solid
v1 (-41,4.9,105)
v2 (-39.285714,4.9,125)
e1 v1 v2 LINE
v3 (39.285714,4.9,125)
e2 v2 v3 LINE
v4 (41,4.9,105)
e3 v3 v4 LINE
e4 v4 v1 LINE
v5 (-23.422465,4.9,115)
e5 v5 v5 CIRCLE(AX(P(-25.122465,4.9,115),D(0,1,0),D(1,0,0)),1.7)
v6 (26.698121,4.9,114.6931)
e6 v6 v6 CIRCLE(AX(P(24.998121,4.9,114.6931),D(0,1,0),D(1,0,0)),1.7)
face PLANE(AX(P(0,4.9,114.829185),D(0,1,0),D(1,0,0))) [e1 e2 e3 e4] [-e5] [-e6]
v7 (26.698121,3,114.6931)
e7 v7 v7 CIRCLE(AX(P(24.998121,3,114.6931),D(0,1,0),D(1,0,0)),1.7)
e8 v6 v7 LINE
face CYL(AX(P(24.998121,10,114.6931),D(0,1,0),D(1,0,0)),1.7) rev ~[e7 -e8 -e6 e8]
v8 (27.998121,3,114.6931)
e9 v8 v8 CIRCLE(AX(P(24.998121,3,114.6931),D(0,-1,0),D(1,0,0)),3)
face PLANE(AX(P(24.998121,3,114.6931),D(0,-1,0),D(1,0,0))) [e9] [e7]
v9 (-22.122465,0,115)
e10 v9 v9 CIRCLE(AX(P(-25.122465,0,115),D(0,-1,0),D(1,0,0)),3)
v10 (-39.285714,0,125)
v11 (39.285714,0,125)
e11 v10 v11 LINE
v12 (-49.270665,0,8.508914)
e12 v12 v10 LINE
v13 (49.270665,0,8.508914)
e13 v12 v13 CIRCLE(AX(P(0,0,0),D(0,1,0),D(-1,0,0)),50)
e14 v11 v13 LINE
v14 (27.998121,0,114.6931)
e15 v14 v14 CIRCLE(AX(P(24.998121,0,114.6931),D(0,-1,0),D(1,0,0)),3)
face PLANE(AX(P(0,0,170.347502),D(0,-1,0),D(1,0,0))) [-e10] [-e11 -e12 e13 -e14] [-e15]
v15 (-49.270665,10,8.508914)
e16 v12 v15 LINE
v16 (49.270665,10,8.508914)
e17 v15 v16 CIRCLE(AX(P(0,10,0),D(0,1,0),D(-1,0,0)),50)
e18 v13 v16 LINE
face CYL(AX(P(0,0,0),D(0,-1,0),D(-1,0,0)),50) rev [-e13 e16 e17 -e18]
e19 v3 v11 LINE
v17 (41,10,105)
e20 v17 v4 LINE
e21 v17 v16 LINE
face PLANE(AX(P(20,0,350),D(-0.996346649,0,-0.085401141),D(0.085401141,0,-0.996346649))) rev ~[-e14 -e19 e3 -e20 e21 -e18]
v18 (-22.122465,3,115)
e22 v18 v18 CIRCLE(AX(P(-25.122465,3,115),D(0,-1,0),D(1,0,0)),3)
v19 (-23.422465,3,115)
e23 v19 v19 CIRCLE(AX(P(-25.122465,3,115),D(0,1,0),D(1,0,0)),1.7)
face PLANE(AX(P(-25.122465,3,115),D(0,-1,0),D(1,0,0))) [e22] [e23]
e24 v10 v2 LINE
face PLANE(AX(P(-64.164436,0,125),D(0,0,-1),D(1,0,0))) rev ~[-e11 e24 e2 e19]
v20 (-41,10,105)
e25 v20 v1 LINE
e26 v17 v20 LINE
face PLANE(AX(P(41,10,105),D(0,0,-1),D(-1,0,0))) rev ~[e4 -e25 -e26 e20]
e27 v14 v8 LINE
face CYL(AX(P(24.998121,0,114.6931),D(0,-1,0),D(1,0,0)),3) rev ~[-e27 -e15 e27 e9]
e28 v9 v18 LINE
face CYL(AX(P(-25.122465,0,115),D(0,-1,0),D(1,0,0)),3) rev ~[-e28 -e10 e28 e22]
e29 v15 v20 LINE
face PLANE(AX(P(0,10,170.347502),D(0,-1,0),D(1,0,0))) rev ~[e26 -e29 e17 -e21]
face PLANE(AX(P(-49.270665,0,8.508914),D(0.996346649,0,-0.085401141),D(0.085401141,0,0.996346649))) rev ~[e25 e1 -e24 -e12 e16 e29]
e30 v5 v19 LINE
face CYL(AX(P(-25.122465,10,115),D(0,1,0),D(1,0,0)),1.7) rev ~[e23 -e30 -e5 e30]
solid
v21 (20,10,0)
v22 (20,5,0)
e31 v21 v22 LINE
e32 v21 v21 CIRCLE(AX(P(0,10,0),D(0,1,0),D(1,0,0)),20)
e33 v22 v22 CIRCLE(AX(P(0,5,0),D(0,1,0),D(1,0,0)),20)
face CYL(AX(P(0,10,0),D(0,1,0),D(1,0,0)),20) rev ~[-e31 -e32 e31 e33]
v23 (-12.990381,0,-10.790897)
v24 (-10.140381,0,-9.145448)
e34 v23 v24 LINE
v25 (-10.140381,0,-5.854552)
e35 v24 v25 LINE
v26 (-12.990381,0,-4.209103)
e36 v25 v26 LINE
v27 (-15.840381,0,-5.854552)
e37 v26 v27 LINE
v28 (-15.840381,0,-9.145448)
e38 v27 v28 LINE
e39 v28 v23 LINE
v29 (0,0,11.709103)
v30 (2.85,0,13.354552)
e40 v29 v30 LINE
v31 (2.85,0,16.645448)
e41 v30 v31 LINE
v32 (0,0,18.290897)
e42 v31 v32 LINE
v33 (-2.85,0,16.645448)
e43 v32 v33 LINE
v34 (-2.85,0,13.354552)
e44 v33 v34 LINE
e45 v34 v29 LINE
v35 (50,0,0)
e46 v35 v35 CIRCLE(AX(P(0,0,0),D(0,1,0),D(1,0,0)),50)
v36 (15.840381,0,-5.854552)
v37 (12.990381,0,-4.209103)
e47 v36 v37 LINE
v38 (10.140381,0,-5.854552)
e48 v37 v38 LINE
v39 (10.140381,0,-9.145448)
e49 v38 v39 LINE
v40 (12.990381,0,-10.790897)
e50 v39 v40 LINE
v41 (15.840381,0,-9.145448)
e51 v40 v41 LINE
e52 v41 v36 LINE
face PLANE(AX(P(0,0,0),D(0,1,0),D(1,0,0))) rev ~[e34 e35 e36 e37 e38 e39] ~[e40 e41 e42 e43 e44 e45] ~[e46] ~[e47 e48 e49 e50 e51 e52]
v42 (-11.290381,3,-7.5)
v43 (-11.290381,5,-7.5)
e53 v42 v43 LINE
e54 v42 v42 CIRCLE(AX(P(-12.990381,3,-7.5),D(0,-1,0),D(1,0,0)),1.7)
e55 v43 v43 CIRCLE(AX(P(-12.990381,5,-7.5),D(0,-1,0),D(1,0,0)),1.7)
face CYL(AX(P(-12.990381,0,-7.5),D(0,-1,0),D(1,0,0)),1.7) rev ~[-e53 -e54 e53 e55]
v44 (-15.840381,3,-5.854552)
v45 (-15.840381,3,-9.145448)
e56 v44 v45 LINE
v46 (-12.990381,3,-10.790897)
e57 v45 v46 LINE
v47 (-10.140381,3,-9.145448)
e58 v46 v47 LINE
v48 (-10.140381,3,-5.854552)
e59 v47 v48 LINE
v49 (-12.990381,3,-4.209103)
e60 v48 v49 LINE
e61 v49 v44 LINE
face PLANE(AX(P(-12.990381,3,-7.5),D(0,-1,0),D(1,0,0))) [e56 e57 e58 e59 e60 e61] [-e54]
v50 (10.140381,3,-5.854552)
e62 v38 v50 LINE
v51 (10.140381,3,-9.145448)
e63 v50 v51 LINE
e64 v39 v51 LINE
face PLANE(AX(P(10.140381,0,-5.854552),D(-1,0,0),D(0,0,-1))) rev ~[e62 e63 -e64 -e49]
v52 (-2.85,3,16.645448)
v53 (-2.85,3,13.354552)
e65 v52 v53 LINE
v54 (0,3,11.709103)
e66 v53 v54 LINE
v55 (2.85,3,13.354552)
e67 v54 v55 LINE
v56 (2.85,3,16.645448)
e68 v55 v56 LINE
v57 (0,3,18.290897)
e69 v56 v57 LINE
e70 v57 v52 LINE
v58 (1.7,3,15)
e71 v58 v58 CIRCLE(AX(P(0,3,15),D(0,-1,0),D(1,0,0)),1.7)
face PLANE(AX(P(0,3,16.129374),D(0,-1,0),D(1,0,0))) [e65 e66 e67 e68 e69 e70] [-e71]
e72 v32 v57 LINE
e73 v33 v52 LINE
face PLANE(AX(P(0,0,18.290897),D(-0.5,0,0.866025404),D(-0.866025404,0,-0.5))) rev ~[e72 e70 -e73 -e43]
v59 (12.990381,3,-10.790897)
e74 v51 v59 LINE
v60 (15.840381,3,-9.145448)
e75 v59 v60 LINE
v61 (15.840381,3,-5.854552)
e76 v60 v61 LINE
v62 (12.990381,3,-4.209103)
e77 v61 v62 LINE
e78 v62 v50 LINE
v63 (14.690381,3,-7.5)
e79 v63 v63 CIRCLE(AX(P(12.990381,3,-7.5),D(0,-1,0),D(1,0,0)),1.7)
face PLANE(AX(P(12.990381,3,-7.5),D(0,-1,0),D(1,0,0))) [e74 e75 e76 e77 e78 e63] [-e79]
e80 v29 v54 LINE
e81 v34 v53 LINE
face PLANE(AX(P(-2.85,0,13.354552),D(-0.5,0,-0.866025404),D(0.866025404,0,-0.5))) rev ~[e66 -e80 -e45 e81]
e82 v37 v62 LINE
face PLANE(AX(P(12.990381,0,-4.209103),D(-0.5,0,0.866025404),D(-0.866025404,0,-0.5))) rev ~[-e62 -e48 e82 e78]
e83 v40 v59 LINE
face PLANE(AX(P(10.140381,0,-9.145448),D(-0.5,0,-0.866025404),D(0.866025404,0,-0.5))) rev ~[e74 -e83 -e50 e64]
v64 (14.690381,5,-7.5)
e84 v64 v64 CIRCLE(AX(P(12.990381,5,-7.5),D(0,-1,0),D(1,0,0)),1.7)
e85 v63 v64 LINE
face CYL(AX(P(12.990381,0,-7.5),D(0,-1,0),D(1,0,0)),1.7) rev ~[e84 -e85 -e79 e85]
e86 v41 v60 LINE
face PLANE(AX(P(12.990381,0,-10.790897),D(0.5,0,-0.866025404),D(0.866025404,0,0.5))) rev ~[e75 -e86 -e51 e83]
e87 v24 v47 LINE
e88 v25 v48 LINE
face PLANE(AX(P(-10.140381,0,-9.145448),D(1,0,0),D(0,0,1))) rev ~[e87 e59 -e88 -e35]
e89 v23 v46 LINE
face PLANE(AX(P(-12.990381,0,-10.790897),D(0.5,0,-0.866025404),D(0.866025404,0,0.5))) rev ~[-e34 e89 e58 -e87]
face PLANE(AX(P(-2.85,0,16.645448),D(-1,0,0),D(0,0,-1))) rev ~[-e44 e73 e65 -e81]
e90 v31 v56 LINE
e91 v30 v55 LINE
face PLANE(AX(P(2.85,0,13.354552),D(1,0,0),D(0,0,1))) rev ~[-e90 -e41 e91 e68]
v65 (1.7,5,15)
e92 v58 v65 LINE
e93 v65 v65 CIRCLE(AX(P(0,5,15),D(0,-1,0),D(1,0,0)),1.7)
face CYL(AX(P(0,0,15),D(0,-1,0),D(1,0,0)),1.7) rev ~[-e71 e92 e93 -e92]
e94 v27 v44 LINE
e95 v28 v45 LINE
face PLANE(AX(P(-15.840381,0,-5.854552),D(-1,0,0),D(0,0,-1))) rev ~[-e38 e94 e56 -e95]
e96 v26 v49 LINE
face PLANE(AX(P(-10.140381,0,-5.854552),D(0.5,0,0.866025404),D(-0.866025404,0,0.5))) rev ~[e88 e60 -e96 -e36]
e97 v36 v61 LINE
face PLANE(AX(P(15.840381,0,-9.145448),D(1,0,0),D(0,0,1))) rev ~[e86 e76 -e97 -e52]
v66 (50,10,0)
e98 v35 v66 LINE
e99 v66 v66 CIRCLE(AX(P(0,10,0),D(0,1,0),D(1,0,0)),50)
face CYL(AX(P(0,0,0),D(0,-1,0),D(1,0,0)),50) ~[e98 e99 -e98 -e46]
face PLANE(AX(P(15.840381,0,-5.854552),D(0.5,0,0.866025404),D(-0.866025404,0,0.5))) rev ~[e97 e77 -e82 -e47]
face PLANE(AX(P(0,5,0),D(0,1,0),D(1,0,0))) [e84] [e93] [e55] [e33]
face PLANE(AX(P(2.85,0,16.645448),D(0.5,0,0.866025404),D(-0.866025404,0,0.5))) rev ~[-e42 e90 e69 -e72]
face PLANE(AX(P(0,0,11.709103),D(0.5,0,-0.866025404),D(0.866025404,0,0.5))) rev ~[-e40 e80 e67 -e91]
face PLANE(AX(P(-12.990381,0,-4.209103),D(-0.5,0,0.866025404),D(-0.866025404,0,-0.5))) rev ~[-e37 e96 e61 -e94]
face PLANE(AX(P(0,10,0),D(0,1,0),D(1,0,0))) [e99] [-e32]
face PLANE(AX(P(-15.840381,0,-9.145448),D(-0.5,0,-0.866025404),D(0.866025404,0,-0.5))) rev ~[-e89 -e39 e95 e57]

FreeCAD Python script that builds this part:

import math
import FreeCAD as App
import Part
import Sketcher
Q = App.Units.Quantity


def add_polygon(sketch, points):
    """Adds a closed chain of lines whose ends are joined by coincident constraints."""
    first, n = sketch.GeometryCount, len(points)
    for a, b in zip(points, points[1:] + points[:1]):
        sketch.addGeometry(Part.LineSegment(App.Vector(*a, 0), App.Vector(*b, 0)), False)
    for i in range(n):
        sketch.addConstraint(Sketcher.Constraint("Coincident", first + i, 2, first + (i + 1) % n, 1))

doc = App.newDocument("Part")
body = doc.addObject("PartDesign::Body", "Body")

sketch1 = doc.addObject("Sketcher::SketchObject", "Sketch")
body.addObject(sketch1)
sketch1.AttachmentSupport = (doc.XZ_Plane, [""])
sketch1.MapMode = "FlatFace"
sketch1.addGeometry(Part.Circle(App.Vector(0, 0, 0), App.Vector(0, 0, 1), 50), False)
sketch1.addConstraint([
    Sketcher.Constraint("Coincident", 0, 3, -1, 1),
    Sketcher.Constraint("Diameter", 0, 100.0),
])
pad1 = doc.addObject("PartDesign::Pad", "Pad")
body.addObject(pad1)
pad1.Profile = sketch1
pad1.Length = 10
pad1.Reversed = True

sketch2 = doc.addObject("Sketcher::SketchObject", "Sketch001")
body.addObject(sketch2)
sketch2.AttachmentSupport = (doc.XZ_Plane, [""])
sketch2.MapMode = "FlatFace"
sketch2.AttachmentOffset = App.Placement(App.Vector(0, 0, -10), App.Rotation())
sketch2.addGeometry(Part.Circle(App.Vector(0, 0, 0), App.Vector(0, 0, 1), 20), False)
sketch2.addConstraint([
    Sketcher.Constraint("Coincident", 0, 3, -1, 1),
    Sketcher.Constraint("Diameter", 0, 40.0),
])
pocket1 = doc.addObject("PartDesign::Pocket", "Pocket")
body.addObject(pocket1)
pocket1.Profile = sketch2
pocket1.Length = 5
pocket1.Reversed = True

sketch3 = doc.addObject("Sketcher::SketchObject", "Sketch002")
body.addObject(sketch3)
sketch3.AttachmentSupport = (doc.XZ_Plane, [""])
sketch3.MapMode = "FlatFace"
add_polygon(sketch3, [(2.9, 16.6), (0, 18.3), (-2.9, 16.6), (-2.9, 13.4), (0, 11.7), (2.9, 13.4)])
add_polygon(sketch3, [(-13, -4.2), (-15.8, -5.9), (-15.8, -9.1), (-13, -10.8), (-10.1, -9.1), (-10.1, -5.9)])
add_polygon(sketch3, [(15.8, -5.9), (13, -4.2), (10.1, -5.9), (10.1, -9.1), (13, -10.8), (15.8, -9.1)])
sketch3.addConstraint([
    Sketcher.Constraint("Vertical", 2),
    Sketcher.Constraint("Vertical", 5),
    Sketcher.Constraint("Vertical", 7),
    Sketcher.Constraint("Vertical", 10),
    Sketcher.Constraint("Vertical", 14),
    Sketcher.Constraint("Vertical", 17),
    Sketcher.Constraint("Symmetric", 2, 2, 4, 2, -2),
    Sketcher.Constraint("Symmetric", 11, 2, 12, 2, -2),
    Sketcher.Constraint("Symmetric", 10, 2, 13, 2, -2),
    Sketcher.Constraint("Symmetric", 8, 2, 15, 2, -2),
    Sketcher.Constraint("Symmetric", 7, 2, 16, 2, -2),
    Sketcher.Constraint("PointOnObject", 0, 2, -2),
    Sketcher.Constraint("PointOnObject", 3, 2, -2),
    Sketcher.Constraint("Parallel", 0, 3),
    Sketcher.Constraint("Parallel", 1, 4),
    Sketcher.Constraint("Parallel", 4, 6),
    Sketcher.Constraint("Parallel", 3, 8),
    Sketcher.Constraint("Parallel", 6, 9),
    Sketcher.Constraint("Parallel", 8, 11),
    Sketcher.Constraint("Parallel", 11, 12),
    Sketcher.Constraint("Parallel", 12, 15),
    Sketcher.Constraint("Horizontal", 7, 2, 9, 2),
    Sketcher.Constraint("Horizontal", 6, 2, 10, 2),
    Sketcher.Constraint("Equal", 5, 7),
    Sketcher.Constraint("Equal", 4, 6),
    Sketcher.Constraint("Angle", 0, Q("150 deg")),
    Sketcher.Constraint("DistanceX", 2, 2, 4, 2, 5.7),
    Sketcher.Constraint("DistanceY", 6, 2, 1, 2, 22.5),
    Sketcher.Constraint("DistanceY", 2, 2, 2, 1, 3.290897),
    Sketcher.Constraint("DistanceY", -1, 1, 1, 2, 16.645448),
    Sketcher.Constraint("DistanceX", 6, 2, -1, 1, 15.840381),
])
pocket2 = doc.addObject("PartDesign::Pocket", "Pocket001")
body.addObject(pocket2)
pocket2.Profile = sketch3
pocket2.Length = 3

sketch4 = doc.addObject("Sketcher::SketchObject", "Sketch003")
body.addObject(sketch4)
sketch4.AttachmentSupport = (doc.XZ_Plane, [""])
sketch4.MapMode = "FlatFace"
sketch4.addGeometry([
    Part.Circle(App.Vector(0, 15, 0), App.Vector(0, 0, 1), 1.7),
    Part.Circle(App.Vector(13, -7.5, 0), App.Vector(0, 0, 1), 1.7),
    Part.Circle(App.Vector(-13, -7.5, 0), App.Vector(0, 0, 1), 1.7),
], False)
sketch4.addConstraint([
    Sketcher.Constraint("Equal", 0, 1),
    Sketcher.Constraint("Equal", 1, 2),
    Sketcher.Constraint("Symmetric", 1, 3, 2, 3, -2),
    Sketcher.Constraint("PointOnObject", 0, 3, -2),
    Sketcher.Constraint("Diameter", 0, 3.4),
    Sketcher.Constraint("DistanceY", -1, 1, 0, 3, 15.0),
    Sketcher.Constraint("DistanceY", 1, 3, -1, 1, 7.5),
    Sketcher.Constraint("DistanceX", -1, 1, 1, 3, 12.990381),
])
pocket3 = doc.addObject("PartDesign::Pocket", "Pocket002")
body.addObject(pocket3)
pocket3.Profile = sketch4
pocket3.Length = 10
body2 = doc.addObject("PartDesign::Body", "Body001")

sketch5 = doc.addObject("Sketcher::SketchObject", "Sketch004")
body2.addObject(sketch5)
sketch5.AttachmentSupport = (doc.getObject("XZ_Plane001"), [""])
sketch5.MapMode = "FlatFace"
sketch5.addGeometry([
    Part.LineSegment(App.Vector(-50, 350, 0), App.Vector(-50, 0, 0)),
    Part.ArcOfCircle(Part.Circle(App.Vector(0, 0, 0), App.Vector(0, 0, 1), 50), math.radians(0), math.radians(180)),
    Part.LineSegment(App.Vector(50, 0, 0), App.Vector(50, 350, 0)),
    Part.LineSegment(App.Vector(50, 350, 0), App.Vector(-50, 350, 0)),
], False)
sketch5.addConstraint([
    Sketcher.Constraint("Tangent", 0, 2, 1, 2),
    Sketcher.Constraint("Tangent", 1, 1, 2, 1),
    Sketcher.Constraint("Coincident", 2, 2, 3, 1),
    Sketcher.Constraint("Coincident", 3, 2, 0, 1),
    Sketcher.Constraint("Vertical", 0),
    Sketcher.Constraint("Vertical", 2),
    Sketcher.Constraint("Horizontal", 3),
    Sketcher.Constraint("Coincident", 1, 3, -1, 1),
    Sketcher.Constraint("Radius", 1, 50.0),
    Sketcher.Constraint("DistanceY", 0, 2, 0, 1, 350.0),
])
pad2 = doc.addObject("PartDesign::Pad", "Pad001")
body2.addObject(pad2)
pad2.Profile = sketch5
pad2.Length = 10
pad2.Reversed = True

sketch6 = doc.addObject("Sketcher::SketchObject", "Sketch005")
body2.addObject(sketch6)
sketch6.AttachmentSupport = (doc.getObject("XZ_Plane001"), [""])
sketch6.MapMode = "FlatFace"
add_polygon(sketch6, [(-10, 340), (-10, 299), (10, 299), (10, 340)])
sketch6.addConstraint([
    Sketcher.Constraint("Vertical", 0),
    Sketcher.Constraint("Horizontal", 1),
    Sketcher.Constraint("Vertical", 2),
    Sketcher.Constraint("Horizontal", 3),
    Sketcher.Constraint("DistanceX", 1, 1, 1, 2, 21.0),
    Sketcher.Constraint("DistanceY", 0, 2, 0, 1, 41.0),
    Sketcher.Constraint("DistanceY", -1, 1, 0, 2, 299.0),
    Sketcher.Constraint("DistanceX", 0, 2, -1, 1, 10.5),
])
pocket4 = doc.addObject("PartDesign::Pocket", "Pocket003")
body2.addObject(pocket4)
pocket4.Profile = sketch6
pocket4.Length = 10

sketch7 = doc.addObject("Sketcher::SketchObject", "Sketch006")
body2.addObject(sketch7)
sketch7.AttachmentSupport = (doc.getObject("XZ_Plane001"), [""])
sketch7.MapMode = "FlatFace"
add_polygon(sketch7, [(-10, 346), (-10, 340), (10, 340), (10, 346)])
add_polygon(sketch7, [(-10, 299), (-10, 292), (10, 292), (10, 299)])
sketch7.addConstraint([
    Sketcher.Constraint("Vertical", 0),
    Sketcher.Constraint("Horizontal", 1),
    Sketcher.Constraint("Vertical", 2),
    Sketcher.Constraint("Horizontal", 3),
    Sketcher.Constraint("Vertical", 4),
    Sketcher.Constraint("Horizontal", 5),
    Sketcher.Constraint("Vertical", 6),
    Sketcher.Constraint("Horizontal", 7),
    Sketcher.Constraint("Vertical", 3, 2, 4, 2),
    Sketcher.Constraint("Vertical", 2, 2, 5, 2),
    Sketcher.Constraint("Equal", 2, 4),
    Sketcher.Constraint("DistanceX", 1, 1, 1, 2, 21.0),
    Sketcher.Constraint("DistanceY", 0, 2, 0, 1, 6.5),
    Sketcher.Constraint("DistanceY", -1, 1, 0, 2, 340.0),
    Sketcher.Constraint("DistanceY", -1, 1, 6, 2, 299.0),
    Sketcher.Constraint("DistanceX", 0, 2, -1, 1, 10.5),
])
pocket5 = doc.addObject("PartDesign::Pocket", "Pocket004")
body2.addObject(pocket5)
pocket5.Profile = sketch7
pocket5.Length = 1.5

sketch8 = doc.addObject("Sketcher::SketchObject", "Sketch007")
body2.addObject(sketch8)
sketch8.AttachmentSupport = (doc.getObject("XZ_Plane001"), [""])
sketch8.MapMode = "FlatFace"
sketch8.AttachmentOffset = App.Placement(App.Vector(0, 0, -1.5), App.Rotation())
sketch8.addGeometry([
    Part.Circle(App.Vector(-5, 343.8, 0), App.Vector(0, 0, 1), 1.7),
    Part.Circle(App.Vector(5, 343.8, 0), App.Vector(0, 0, 1), 1.7),
    Part.Circle(App.Vector(-5, 295.2, 0), App.Vector(0, 0, 1), 1.7),
    Part.Circle(App.Vector(5, 295.2, 0), App.Vector(0, 0, 1), 1.7),
], False)
sketch8.addConstraint([
    Sketcher.Constraint("Equal", 0, 1),
    Sketcher.Constraint("Equal", 1, 2),
    Sketcher.Constraint("Equal", 2, 3),
    Sketcher.Constraint("Symmetric", 0, 3, 1, 3, -2),
    Sketcher.Constraint("Symmetric", 2, 3, 3, 3, -2),
    Sketcher.Constraint("Vertical", 0, 3, 2, 3),
    Sketcher.Constraint("Diameter", 0, 3.4),
    Sketcher.Constraint("DistanceX", 0, 3, -1, 1, 5.0),
    Sketcher.Constraint("DistanceY", 2, 3, 0, 3, 48.5),
    Sketcher.Constraint("DistanceY", -1, 1, 0, 3, 343.75),
])
pocket6 = doc.addObject("PartDesign::Pocket", "Pocket005")
body2.addObject(pocket6)
pocket6.Profile = sketch8
pocket6.Length = 9

sketch9 = doc.addObject("Sketcher::SketchObject", "Sketch008")
body2.addObject(sketch9)
sketch9.AttachmentSupport = (doc.getObject("XZ_Plane001"), [""])
sketch9.MapMode = "FlatFace"
sketch9.addGeometry([
    Part.LineSegment(App.Vector(-50, 350, 0), App.Vector(-50, 0, 0)),
    Part.ArcOfCircle(Part.Circle(App.Vector(0, 0, 0), App.Vector(0, 0, 1), 50), math.radians(170.2), math.radians(180)),
    Part.LineSegment(App.Vector(-49, 9, 0), App.Vector(-20, 350, 0)),
    Part.LineSegment(App.Vector(-20, 350, 0), App.Vector(-50, 350, 0)),
    Part.LineSegment(App.Vector(20, 350, 0), App.Vector(49, 9, 0)),
    Part.ArcOfCircle(Part.Circle(App.Vector(0, 0, 0), App.Vector(0, 0, 1), 50), math.radians(0), math.radians(9.8)),
    Part.LineSegment(App.Vector(50, 0, 0), App.Vector(50, 350, 0)),
    Part.LineSegment(App.Vector(50, 350, 0), App.Vector(20, 350, 0)),
], False)
sketch9.addConstraint([
    Sketcher.Constraint("Tangent", 0, 2, 1, 2),
    Sketcher.Constraint("Coincident", 1, 1, 2, 1),
    Sketcher.Constraint("Coincident", 2, 2, 3, 1),
    Sketcher.Constraint("Coincident", 3, 2, 0, 1),
    Sketcher.Constraint("Coincident", 4, 2, 5, 2),
    Sketcher.Constraint("Tangent", 5, 1, 6, 1),
    Sketcher.Constraint("Coincident", 6, 2, 7, 1),
    Sketcher.Constraint("Coincident", 7, 2, 4, 1),
    Sketcher.Constraint("Vertical", 0),
    Sketcher.Constraint("Horizontal", 3),
    Sketcher.Constraint("Vertical", 6),
    Sketcher.Constraint("Horizontal", 7),
    Sketcher.Constraint("Coincident", 1, 3, -1, 1),
    Sketcher.Constraint("Coincident", 5, 3, -1, 1),
    Sketcher.Constraint("Equal", 1, 5),
    Sketcher.Constraint("Symmetric", 2, 2, 7, 2, -2),
    Sketcher.Constraint("Horizontal", 1, 1, 4, 2),
    Sketcher.Constraint("Radius", 1, 50.0),
    Sketcher.Constraint("DistanceX", 3, 2, 3, 1, 30.0),
    Sketcher.Constraint("DistanceY", 0, 2, 0, 1, 350.0),
    Sketcher.Constraint("DistanceX", 1, 1, 4, 2, 98.541329),
])
pocket7 = doc.addObject("PartDesign::Pocket", "Pocket006")
body2.addObject(pocket7)
pocket7.Profile = sketch9
pocket7.Length = 10

sketch10 = doc.addObject("Sketcher::SketchObject", "Sketch009")
body2.addObject(sketch10)
sketch10.AttachmentSupport = (doc.getObject("XZ_Plane001"), [""])
sketch10.MapMode = "FlatFace"
add_polygon(sketch10, [(-64, 375), (-64, 125), (58, 125), (58, 375)])
sketch10.addConstraint([
    Sketcher.Constraint("Vertical", 0),
    Sketcher.Constraint("Horizontal", 1),
    Sketcher.Constraint("Vertical", 2),
    Sketcher.Constraint("Horizontal", 3),
    Sketcher.Constraint("DistanceY", 0, 2, 0, 1, 250.0),
    Sketcher.Constraint("DistanceY", -1, 1, 0, 2, 125.0),
    Sketcher.Constraint("DistanceX", 1, 1, 1, 2, 121.865884),
    Sketcher.Constraint("DistanceX", -1, 1, 1, 2, 57.701448),
])
pocket8 = doc.addObject("PartDesign::Pocket", "Pocket007")
body2.addObject(pocket8)
pocket8.Profile = sketch10
pocket8.Length = 10

sketch11 = doc.addObject("Sketcher::SketchObject", "Sketch010")
body2.addObject(sketch11)
sketch11.AttachmentSupport = (doc.getObject("XZ_Plane001"), [""])
sketch11.MapMode = "FlatFace"
sketch11.AttachmentOffset = App.Placement(App.Vector(0, 0, -10), App.Rotation())
add_polygon(sketch11, [(41, 105), (-41, 105), (-39.3, 125), (39.3, 125)])
sketch11.addGeometry(Part.Circle(App.Vector(-25.1, 115, 0), App.Vector(0, 0, 1), 1.7), False)
sketch11.addGeometry(Part.Circle(App.Vector(25, 114.7, 0), App.Vector(0, 0, 1), 1.7), False)
sketch11.addConstraint([
    Sketcher.Constraint("Horizontal", 0),
    Sketcher.Constraint("Horizontal", 2),
    Sketcher.Constraint("Equal", 4, 5),
    Sketcher.Constraint("Equal", 1, 3),
    Sketcher.Constraint("Diameter", 4, 3.4),
    Sketcher.Constraint("DistanceX", 0, 2, 0, 1, 82.0),
    Sketcher.Constraint("DistanceY", -1, 1, 4, 3, 115.0),
    Sketcher.Constraint("DistanceX", 0, 2, -1, 1, 41.0),
    Sketcher.Constraint("DistanceY", -1, 1, 0, 2, 105.0),
    Sketcher.Constraint("DistanceY", -1, 1, 1, 2, 125.0),
    Sketcher.Constraint("DistanceX", 2, 1, 2, 2, 78.571429),
    Sketcher.Constraint("DistanceY", -1, 1, 5, 3, 114.6931),
    Sketcher.Constraint("DistanceX", -1, 1, 5, 3, 24.998121),
    Sketcher.Constraint("DistanceX", 1, 2, 4, 3, 14.163249),
])
pocket9 = doc.addObject("PartDesign::Pocket", "Pocket008")
body2.addObject(pocket9)
pocket9.Profile = sketch11
pocket9.Length = 5.1
pocket9.Reversed = True

sketch12 = doc.addObject("Sketcher::SketchObject", "Sketch011")
body2.addObject(sketch12)
sketch12.AttachmentSupport = (doc.getObject("XZ_Plane001"), [""])
sketch12.MapMode = "FlatFace"
sketch12.AttachmentOffset = App.Placement(App.Vector(0, 0, -10), App.Rotation())
sketch12.addGeometry([
    Part.Circle(App.Vector(-25.1, 115, 0), App.Vector(0, 0, 1), 1.7),
    Part.Circle(App.Vector(25, 114.7, 0), App.Vector(0, 0, 1), 1.7),
], False)
sketch12.addConstraint([
    Sketcher.Constraint("Equal", 0, 1),
    Sketcher.Constraint("Diameter", 0, 3.4),
    Sketcher.Constraint("DistanceY", -1, 1, 0, 3, 115.0),
    Sketcher.Constraint("DistanceY", -1, 1, 1, 3, 114.6931),
    Sketcher.Constraint("DistanceX", -1, 1, 1, 3, 24.998121),
    Sketcher.Constraint("DistanceX", 0, 3, -1, 1, 25.122465),
])
pocket10 = doc.addObject("PartDesign::Pocket", "Pocket009")
body2.addObject(pocket10)
pocket10.Profile = sketch12
pocket10.Length = 10
pocket10.Reversed = True

sketch13 = doc.addObject("Sketcher::SketchObject", "Sketch012")
body2.addObject(sketch13)
sketch13.AttachmentSupport = (doc.getObject("XZ_Plane001"), [""])
sketch13.MapMode = "FlatFace"
sketch13.addGeometry([
    Part.Circle(App.Vector(-25.1, 115, 0), App.Vector(0, 0, 1), 3),
    Part.Circle(App.Vector(25, 114.7, 0), App.Vector(0, 0, 1), 3),
], False)
sketch13.addConstraint([
    Sketcher.Constraint("Equal", 0, 1),
    Sketcher.Constraint("Diameter", 0, 6.0),
    Sketcher.Constraint("DistanceY", -1, 1, 0, 3, 115.0),
    Sketcher.Constraint("DistanceY", -1, 1, 1, 3, 114.6931),
    Sketcher.Constraint("DistanceX", -1, 1, 1, 3, 24.998121),
    Sketcher.Constraint("DistanceX", 0, 3, -1, 1, 25.122465),
])
pocket11 = doc.addObject("PartDesign::Pocket", "Pocket010")
body2.addObject(pocket11)
pocket11.Profile = sketch13
pocket11.Length = 3

doc.recompute()
